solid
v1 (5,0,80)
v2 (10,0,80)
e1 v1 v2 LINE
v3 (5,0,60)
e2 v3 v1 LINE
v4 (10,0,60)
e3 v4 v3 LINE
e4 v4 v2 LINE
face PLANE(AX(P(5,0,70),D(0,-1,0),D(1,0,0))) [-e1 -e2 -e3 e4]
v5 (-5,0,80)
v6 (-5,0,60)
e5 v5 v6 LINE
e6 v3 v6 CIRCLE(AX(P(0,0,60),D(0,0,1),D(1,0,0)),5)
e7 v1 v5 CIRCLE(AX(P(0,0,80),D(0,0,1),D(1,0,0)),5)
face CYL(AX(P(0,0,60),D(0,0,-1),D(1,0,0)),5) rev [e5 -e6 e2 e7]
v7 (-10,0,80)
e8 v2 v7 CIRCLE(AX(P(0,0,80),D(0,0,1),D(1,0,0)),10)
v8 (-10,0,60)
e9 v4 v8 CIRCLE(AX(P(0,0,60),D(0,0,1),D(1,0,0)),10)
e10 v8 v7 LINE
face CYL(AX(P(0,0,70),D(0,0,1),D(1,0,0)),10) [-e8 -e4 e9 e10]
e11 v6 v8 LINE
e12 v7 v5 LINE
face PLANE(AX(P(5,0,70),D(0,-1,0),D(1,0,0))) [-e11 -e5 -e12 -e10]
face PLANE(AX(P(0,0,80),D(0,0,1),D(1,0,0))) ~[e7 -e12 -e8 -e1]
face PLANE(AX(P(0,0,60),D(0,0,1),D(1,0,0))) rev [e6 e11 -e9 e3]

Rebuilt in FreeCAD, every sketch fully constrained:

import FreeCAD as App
import Part
import Sketcher

V = App.Vector
Q = App.Units.Quantity


def add_polygon(sketch, points):
    """Adds a closed chain of lines whose ends are joined by coincident constraints."""
    first, n = sketch.GeometryCount, len(points)
    for a, b in zip(points, points[1:] + points[:1]):
        sketch.addGeometry(Part.LineSegment(App.Vector(*a, 0), App.Vector(*b, 0)), False)
    for i in range(n):
        sketch.addConstraint(Sketcher.Constraint("Coincident", first + i, 2, first + (i + 1) % n, 1))

doc = App.newDocument("Part")
body = doc.addObject("PartDesign::Body", "Body")

sketch1 = doc.addObject("Sketcher::SketchObject", "Sketch")
body.addObject(sketch1)
sketch1.AttachmentSupport = (doc.XY_Plane, [""])
sketch1.MapMode = "FlatFace"
sketch1.addGeometry(Part.Circle(V(0, 0, 0), V(0, 0, 1), 5), False)
sketch1.addConstraint([
    Sketcher.Constraint("Coincident", 0, 3, -1, 1),
    Sketcher.Constraint("Diameter", 0, Q("10 mm")),
])
pad1 = doc.addObject("PartDesign::Pad", "Pad")
body.addObject(pad1)
pad1.Profile = sketch1
pad1.Length = 20
body2 = doc.addObject("PartDesign::Body", "Body001")

sketch2 = doc.addObject("Sketcher::SketchObject", "Sketch001")
body2.addObject(sketch2)
sketch2.AttachmentSupport = (doc.getObject("XZ_Plane001"), [""])
sketch2.MapMode = "FlatFace"
add_polygon(sketch2, [(0, 20), (0, 0), (10, 0), (10, 20)])
sketch2.addConstraint([
    Sketcher.Constraint("Vertical", 0),
    Sketcher.Constraint("Horizontal", 1),
    Sketcher.Constraint("Vertical", 2),
    Sketcher.Constraint("Horizontal", 3),
    Sketcher.Constraint("Coincident", 0, 2, -1, 1),
    Sketcher.Constraint("DistanceX", 1, 1, 1, 2, Q("10 mm")),
    Sketcher.Constraint("DistanceY", 0, 2, 0, 1, Q("20 mm")),
])
revolution = doc.addObject("PartDesign::Revolution", "Revolution")
body2.addObject(revolution)
revolution.Profile = sketch2
revolution.ReferenceAxis = (sketch2, ["V_Axis"])
revolution.Angle = 180
doc.recompute()

boolean = doc.addObject("PartDesign::Boolean", "Boolean")
body2.addObject(boolean)
boolean.Type = "Cut"
boolean.addObjects([body])
body3 = doc.addObject("PartDesign::Body", "Body002")
doc.recompute()

body2.Placement = App.Placement(V(0, 0, 60), App.Rotation(V(0, 0, 1), 0))
boolean2 = doc.addObject("PartDesign::Boolean", "Boolean001")
body3.addObject(boolean2)
boolean2.Type = "Fuse"
boolean2.addObjects([body2])

doc.recompute()
